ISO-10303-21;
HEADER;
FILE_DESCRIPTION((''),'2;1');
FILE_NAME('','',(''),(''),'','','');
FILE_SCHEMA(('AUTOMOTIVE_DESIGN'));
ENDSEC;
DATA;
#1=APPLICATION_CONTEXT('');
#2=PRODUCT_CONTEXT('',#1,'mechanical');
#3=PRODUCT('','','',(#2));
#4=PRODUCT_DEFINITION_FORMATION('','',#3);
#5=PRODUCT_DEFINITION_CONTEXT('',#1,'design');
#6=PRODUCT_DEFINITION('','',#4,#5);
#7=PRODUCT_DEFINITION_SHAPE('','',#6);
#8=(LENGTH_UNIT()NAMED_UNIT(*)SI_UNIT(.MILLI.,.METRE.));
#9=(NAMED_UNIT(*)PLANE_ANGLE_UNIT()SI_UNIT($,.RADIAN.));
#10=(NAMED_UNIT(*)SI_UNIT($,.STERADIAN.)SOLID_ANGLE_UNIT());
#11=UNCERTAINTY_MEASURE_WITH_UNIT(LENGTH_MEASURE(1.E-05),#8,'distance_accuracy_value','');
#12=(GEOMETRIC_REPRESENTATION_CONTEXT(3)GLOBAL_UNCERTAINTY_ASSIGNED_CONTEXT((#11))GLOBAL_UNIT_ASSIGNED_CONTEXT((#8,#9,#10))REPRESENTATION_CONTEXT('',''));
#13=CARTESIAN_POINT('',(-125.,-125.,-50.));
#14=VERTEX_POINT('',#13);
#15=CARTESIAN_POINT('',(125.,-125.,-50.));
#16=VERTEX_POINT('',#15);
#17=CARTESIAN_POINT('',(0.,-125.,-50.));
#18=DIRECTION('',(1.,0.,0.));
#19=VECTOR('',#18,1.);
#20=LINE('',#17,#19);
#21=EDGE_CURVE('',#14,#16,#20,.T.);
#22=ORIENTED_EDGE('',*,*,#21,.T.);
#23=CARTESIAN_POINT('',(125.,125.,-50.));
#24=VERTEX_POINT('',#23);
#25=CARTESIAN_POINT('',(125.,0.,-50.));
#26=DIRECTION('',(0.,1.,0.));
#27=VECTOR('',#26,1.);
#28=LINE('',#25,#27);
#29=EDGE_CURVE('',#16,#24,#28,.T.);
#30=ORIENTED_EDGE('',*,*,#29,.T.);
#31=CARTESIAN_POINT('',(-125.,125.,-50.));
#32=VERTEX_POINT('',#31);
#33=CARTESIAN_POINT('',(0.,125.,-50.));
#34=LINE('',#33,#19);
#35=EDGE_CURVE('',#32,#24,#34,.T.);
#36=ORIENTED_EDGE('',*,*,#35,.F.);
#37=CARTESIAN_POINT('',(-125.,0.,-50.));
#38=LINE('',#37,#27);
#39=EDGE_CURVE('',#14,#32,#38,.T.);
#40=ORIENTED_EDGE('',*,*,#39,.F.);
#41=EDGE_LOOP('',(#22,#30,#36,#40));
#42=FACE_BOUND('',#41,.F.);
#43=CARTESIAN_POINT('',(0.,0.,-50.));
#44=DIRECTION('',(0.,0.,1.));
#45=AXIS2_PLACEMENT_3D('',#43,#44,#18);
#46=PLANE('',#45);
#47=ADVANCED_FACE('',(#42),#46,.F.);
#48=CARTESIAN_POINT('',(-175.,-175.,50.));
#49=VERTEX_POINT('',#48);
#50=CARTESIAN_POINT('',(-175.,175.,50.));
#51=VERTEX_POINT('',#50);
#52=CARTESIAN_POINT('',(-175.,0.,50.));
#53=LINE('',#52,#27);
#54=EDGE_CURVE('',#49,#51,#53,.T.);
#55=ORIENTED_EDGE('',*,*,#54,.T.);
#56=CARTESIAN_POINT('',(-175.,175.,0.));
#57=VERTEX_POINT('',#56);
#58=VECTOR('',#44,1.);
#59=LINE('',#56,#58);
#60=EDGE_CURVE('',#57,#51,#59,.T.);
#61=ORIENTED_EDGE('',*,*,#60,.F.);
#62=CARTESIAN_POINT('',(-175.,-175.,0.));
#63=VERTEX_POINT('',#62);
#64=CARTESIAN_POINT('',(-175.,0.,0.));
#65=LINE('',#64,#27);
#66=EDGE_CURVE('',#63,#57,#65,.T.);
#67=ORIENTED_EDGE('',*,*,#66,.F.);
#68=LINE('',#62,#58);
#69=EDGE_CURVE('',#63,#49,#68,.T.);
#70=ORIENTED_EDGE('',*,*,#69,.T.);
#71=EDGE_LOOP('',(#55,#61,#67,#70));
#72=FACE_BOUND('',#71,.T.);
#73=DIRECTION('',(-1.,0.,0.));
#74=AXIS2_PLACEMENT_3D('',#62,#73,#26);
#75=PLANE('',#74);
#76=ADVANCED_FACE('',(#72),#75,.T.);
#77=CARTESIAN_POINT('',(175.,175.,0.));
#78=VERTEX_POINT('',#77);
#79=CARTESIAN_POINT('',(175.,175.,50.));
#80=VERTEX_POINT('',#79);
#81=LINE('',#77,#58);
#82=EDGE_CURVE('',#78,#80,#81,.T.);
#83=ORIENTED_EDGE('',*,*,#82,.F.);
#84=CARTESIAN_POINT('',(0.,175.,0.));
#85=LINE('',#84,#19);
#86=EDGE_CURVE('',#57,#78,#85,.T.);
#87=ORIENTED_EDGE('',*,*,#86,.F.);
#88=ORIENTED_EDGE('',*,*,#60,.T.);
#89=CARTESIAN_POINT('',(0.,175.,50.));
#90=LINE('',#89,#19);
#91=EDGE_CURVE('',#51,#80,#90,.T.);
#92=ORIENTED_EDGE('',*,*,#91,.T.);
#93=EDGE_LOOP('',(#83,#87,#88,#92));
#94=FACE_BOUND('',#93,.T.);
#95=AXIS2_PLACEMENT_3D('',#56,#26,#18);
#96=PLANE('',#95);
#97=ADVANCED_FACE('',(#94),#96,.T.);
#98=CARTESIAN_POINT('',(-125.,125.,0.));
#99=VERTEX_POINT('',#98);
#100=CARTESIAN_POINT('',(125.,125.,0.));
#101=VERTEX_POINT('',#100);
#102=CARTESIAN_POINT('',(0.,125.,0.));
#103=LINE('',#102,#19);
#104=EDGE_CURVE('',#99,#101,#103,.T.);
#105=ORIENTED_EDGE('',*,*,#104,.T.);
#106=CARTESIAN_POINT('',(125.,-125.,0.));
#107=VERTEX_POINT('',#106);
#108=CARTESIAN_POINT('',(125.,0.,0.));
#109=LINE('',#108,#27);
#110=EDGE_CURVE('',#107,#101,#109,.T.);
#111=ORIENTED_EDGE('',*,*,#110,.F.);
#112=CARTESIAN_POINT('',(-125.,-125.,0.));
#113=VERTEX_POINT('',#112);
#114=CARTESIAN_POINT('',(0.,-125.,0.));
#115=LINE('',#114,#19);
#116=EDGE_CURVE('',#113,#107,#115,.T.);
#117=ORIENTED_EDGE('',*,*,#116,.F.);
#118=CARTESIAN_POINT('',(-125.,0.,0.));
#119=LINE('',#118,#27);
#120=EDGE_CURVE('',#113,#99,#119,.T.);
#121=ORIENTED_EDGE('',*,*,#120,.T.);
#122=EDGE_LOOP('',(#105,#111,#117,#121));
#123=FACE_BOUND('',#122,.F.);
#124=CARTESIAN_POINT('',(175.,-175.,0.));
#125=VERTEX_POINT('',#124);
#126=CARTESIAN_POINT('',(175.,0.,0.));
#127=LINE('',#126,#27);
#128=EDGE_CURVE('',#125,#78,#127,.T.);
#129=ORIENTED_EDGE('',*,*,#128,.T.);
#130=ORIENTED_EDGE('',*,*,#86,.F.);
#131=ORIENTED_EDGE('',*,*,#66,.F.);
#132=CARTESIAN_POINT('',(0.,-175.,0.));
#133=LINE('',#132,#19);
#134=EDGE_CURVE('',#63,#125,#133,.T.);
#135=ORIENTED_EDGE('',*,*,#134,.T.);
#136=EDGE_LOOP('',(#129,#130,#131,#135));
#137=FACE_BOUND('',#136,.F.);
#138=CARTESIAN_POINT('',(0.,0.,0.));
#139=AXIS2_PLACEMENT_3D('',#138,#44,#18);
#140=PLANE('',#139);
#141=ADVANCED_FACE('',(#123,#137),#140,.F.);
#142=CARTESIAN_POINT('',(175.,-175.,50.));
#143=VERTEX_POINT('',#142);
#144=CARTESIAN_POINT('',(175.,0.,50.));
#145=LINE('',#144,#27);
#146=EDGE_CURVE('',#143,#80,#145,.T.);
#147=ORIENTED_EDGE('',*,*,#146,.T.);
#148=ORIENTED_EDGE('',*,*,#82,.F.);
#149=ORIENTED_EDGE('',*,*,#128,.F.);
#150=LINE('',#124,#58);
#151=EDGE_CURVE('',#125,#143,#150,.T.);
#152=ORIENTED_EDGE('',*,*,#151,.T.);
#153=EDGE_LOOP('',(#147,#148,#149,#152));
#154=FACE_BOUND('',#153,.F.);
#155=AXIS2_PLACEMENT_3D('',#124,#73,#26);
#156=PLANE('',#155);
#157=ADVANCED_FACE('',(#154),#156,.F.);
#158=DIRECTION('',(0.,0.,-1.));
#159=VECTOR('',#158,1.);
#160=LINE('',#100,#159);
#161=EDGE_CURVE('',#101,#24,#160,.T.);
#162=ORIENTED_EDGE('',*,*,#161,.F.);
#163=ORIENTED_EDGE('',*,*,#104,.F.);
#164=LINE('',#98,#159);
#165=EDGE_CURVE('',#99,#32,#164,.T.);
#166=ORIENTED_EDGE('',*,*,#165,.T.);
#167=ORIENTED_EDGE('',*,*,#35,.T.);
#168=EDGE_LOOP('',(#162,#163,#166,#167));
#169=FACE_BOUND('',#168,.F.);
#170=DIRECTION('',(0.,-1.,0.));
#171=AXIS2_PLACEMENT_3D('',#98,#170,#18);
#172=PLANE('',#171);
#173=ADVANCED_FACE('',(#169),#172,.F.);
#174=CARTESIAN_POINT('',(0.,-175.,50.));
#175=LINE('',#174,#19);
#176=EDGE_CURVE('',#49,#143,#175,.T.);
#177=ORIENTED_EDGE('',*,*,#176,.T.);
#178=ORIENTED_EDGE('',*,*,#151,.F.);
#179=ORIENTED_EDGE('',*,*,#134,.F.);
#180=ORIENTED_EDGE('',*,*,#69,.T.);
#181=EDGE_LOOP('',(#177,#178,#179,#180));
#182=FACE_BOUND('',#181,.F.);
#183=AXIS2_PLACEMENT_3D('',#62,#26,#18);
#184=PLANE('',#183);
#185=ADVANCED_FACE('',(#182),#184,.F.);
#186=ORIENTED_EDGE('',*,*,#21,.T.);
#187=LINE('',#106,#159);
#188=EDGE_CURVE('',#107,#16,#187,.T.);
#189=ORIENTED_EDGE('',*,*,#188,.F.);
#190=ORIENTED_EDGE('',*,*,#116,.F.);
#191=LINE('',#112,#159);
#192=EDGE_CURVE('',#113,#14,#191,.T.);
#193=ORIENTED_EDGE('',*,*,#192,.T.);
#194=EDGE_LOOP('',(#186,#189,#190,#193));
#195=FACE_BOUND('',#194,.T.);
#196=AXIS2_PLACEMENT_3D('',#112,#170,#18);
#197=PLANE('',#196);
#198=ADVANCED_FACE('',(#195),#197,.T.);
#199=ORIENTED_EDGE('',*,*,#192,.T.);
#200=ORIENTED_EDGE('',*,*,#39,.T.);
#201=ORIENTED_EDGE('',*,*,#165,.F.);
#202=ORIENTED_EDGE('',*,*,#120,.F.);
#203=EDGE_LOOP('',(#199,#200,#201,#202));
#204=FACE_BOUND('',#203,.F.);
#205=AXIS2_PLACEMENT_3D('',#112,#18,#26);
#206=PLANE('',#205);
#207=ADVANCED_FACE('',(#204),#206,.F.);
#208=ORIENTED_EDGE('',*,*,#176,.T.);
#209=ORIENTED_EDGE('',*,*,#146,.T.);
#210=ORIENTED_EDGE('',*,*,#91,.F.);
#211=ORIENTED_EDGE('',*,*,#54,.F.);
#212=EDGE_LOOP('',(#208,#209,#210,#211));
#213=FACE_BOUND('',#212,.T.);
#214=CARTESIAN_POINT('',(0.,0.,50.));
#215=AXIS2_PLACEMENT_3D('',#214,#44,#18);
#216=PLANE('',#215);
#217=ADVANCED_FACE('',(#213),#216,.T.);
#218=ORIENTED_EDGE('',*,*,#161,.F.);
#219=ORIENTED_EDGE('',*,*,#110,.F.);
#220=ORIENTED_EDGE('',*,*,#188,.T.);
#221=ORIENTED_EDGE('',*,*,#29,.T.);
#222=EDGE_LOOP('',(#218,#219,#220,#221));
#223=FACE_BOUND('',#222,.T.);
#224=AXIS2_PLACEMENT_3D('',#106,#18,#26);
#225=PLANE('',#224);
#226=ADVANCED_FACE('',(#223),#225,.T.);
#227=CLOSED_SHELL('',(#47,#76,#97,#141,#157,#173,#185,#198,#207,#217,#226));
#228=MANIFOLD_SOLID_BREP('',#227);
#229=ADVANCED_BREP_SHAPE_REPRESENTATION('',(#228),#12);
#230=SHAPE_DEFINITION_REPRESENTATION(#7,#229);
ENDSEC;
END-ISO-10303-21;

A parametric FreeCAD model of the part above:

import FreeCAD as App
import Part
import Sketcher

V = App.Vector
Q = App.Units.Quantity


def add_polygon(sketch, points):
    """Adds a closed chain of lines whose ends are joined by coincident constraints."""
    first, n = sketch.GeometryCount, len(points)
    for a, b in zip(points, points[1:] + points[:1]):
        sketch.addGeometry(Part.LineSegment(App.Vector(*a, 0), App.Vector(*b, 0)), False)
    for i in range(n):
        sketch.addConstraint(Sketcher.Constraint("Coincident", first + i, 2, first + (i + 1) % n, 1))

doc = App.newDocument("Part")
body = doc.addObject("PartDesign::Body", "Body")

# Sketch on XY plane
sketch1 = body.newObject("Sketcher::SketchObject", "Sketch")
sketch1.AttachmentSupport = (doc.getObject("XY_Plane"), [""])
sketch1.MapMode = "FlatFace"
add_polygon(sketch1, [(-175, 175), (-175, -175), (175, -175), (175, 175)])  # lines 0-3
sketch1.addConstraint(Sketcher.Constraint("Vertical", 0))
sketch1.addConstraint(Sketcher.Constraint("Horizontal", 1))
sketch1.addConstraint(Sketcher.Constraint("Vertical", 2))
sketch1.addConstraint(Sketcher.Constraint("Horizontal", 3))
sketch1.addConstraint(Sketcher.Constraint("Symmetric", 0, 2, 2, 2, -1, 1))
sketch1.addConstraint(Sketcher.Constraint("Equal", 3, 0))
sketch1.addConstraint(Sketcher.Constraint("DistanceX", 1, 1, 1, 2, Q("350 mm")))
pad1 = body.newObject("PartDesign::Pad", "Pad")
pad1.Profile = sketch1
pad1.Length = 50

# Sketch on XY plane
sketch2 = body.newObject("Sketcher::SketchObject", "Sketch001")
sketch2.AttachmentSupport = (doc.getObject("XY_Plane"), [""])
sketch2.MapMode = "FlatFace"
add_polygon(sketch2, [(-125, 125), (-125, -125), (125, -125), (125, 125)])  # lines 0-3
sketch2.addConstraint(Sketcher.Constraint("Vertical", 0))
sketch2.addConstraint(Sketcher.Constraint("Horizontal", 1))
sketch2.addConstraint(Sketcher.Constraint("Vertical", 2))
sketch2.addConstraint(Sketcher.Constraint("Horizontal", 3))
sketch2.addConstraint(Sketcher.Constraint("Symmetric", 0, 2, 2, 2, -1, 1))
sketch2.addConstraint(Sketcher.Constraint("Equal", 3, 0))
sketch2.addConstraint(Sketcher.Constraint("DistanceX", 1, 1, 1, 2, Q("250 mm")))
pad2 = body.newObject("PartDesign::Pad", "Pad001")
pad2.Profile = sketch2
pad2.Length = 50
pad2.Reversed = True

doc.recompute()
